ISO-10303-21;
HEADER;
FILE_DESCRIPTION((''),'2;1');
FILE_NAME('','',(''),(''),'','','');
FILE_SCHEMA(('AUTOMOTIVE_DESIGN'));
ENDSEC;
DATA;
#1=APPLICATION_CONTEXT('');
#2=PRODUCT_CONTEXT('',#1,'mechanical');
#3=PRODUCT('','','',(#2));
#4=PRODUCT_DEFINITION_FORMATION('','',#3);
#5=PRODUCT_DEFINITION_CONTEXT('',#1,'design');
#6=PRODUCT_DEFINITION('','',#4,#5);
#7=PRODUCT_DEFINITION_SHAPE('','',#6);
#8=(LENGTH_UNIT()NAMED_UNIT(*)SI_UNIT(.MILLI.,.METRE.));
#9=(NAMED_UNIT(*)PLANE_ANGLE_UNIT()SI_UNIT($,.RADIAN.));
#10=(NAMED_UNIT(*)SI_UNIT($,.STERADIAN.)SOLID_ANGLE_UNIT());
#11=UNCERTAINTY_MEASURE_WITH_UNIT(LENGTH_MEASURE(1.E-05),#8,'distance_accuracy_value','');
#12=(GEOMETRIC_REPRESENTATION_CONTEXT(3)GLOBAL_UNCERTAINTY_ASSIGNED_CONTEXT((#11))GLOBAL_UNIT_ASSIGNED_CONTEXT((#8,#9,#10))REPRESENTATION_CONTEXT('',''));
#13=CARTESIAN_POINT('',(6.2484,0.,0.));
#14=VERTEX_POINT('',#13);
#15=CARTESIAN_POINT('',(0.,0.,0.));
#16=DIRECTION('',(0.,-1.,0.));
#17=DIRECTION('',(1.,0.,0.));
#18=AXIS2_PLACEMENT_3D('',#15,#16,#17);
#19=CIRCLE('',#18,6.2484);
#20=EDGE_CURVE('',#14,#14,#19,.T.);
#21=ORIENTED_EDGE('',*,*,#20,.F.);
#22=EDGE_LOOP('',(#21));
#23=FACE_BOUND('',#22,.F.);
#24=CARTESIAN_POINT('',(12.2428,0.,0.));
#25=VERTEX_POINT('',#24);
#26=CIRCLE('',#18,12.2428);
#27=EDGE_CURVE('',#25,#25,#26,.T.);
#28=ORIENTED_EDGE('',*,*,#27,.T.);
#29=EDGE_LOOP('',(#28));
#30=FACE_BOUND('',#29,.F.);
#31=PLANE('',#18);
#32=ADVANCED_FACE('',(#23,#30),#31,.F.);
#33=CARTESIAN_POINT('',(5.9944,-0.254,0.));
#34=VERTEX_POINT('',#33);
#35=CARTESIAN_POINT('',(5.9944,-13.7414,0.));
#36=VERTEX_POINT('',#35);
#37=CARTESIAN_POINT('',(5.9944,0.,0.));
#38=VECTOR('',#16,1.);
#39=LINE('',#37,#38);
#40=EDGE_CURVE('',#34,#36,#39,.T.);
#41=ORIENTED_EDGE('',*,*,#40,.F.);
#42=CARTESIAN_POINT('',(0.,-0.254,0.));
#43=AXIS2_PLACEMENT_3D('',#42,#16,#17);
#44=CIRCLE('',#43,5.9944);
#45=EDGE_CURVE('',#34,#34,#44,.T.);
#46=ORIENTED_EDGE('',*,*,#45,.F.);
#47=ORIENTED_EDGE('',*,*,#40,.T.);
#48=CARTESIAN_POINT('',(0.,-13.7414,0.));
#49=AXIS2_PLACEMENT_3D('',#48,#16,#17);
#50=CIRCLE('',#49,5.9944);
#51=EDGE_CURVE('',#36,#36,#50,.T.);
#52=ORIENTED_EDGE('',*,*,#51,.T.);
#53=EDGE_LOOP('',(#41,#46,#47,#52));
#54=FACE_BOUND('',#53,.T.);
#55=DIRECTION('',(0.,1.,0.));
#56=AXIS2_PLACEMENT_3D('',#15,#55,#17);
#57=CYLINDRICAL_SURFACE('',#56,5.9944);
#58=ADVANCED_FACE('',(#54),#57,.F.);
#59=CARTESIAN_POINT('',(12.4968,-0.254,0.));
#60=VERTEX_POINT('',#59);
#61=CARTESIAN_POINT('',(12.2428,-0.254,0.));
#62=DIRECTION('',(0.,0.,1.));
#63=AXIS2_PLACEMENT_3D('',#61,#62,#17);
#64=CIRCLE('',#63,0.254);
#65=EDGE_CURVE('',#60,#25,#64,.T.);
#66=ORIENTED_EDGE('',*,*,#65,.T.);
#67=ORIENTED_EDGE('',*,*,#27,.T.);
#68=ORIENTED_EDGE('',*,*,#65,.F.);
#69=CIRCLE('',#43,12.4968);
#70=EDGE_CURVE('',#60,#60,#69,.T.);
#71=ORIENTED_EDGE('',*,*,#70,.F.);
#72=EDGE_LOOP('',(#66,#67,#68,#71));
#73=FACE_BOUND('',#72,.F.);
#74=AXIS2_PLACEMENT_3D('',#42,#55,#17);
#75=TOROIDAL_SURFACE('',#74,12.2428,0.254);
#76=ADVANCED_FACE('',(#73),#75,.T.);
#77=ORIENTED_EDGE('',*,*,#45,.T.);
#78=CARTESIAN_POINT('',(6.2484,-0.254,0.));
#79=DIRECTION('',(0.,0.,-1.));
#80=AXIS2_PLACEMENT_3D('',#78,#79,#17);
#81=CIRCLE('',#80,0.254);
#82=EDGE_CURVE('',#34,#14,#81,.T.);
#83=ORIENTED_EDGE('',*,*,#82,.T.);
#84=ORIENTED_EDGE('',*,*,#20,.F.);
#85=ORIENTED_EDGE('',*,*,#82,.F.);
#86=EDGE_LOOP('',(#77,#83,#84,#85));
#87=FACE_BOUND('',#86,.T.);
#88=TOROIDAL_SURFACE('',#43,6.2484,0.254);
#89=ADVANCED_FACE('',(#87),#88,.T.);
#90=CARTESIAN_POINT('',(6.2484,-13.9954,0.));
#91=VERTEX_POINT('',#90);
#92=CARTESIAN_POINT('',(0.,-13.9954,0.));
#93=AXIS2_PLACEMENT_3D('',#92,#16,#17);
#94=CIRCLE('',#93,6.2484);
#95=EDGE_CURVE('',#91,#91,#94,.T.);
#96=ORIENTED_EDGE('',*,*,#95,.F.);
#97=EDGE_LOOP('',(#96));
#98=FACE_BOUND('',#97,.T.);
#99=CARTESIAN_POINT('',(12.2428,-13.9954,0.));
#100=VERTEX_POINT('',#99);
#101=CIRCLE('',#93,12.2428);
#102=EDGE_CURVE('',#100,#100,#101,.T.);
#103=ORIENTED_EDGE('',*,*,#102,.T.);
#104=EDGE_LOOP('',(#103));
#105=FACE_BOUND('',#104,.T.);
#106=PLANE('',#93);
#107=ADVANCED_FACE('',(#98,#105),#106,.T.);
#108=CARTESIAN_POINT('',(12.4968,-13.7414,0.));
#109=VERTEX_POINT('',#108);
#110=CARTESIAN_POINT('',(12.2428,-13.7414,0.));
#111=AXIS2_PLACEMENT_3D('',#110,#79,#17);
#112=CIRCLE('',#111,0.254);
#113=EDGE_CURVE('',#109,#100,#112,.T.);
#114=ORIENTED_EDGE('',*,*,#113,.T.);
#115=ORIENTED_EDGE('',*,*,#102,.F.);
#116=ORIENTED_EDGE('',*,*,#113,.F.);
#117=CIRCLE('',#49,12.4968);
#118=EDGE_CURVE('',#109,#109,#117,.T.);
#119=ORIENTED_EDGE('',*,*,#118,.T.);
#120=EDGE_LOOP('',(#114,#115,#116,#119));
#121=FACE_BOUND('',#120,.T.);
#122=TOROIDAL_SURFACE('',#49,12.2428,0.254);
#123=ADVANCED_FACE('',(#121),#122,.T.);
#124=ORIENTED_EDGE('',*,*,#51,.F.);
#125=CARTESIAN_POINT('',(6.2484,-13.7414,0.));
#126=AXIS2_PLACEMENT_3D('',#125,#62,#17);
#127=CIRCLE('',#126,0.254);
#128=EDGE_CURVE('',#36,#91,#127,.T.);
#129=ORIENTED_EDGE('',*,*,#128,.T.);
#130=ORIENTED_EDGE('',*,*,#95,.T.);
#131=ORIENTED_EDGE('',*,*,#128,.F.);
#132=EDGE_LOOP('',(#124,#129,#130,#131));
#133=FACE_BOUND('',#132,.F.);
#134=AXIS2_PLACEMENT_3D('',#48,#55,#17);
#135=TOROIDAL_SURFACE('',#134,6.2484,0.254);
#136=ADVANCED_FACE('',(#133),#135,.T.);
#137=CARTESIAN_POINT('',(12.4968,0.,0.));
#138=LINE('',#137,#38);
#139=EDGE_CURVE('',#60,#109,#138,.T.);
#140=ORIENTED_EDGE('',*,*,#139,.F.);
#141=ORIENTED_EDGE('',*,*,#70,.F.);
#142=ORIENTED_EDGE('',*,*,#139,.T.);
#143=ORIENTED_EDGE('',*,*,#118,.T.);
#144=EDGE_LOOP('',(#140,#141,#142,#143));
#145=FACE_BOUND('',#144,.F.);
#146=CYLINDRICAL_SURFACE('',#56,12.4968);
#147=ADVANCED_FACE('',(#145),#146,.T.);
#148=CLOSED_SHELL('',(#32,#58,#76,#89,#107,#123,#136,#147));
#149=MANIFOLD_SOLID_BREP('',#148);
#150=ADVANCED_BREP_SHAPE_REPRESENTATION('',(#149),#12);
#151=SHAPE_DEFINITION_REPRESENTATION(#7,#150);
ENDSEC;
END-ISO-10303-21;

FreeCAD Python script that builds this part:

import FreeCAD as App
import Part
import Sketcher
from FreeCAD import Vector
Q = App.Units.Quantity

doc = App.newDocument("Part")
params = doc.addObject("Spreadsheet::Sheet", "Params")
for row, (alias, value) in enumerate([
    ("sketch1_diameter", "0.984 in"),
    ("sketch1_diameter2", "0.472 in"),
    ("pad1_length", "0.551 in"),
    ("fillet_radius", "0.01 in"),
], start=1):
    params.set(f"A{row}", alias)
    params.set(f"B{row}", "=" + value)
    params.setAlias(f"B{row}", alias)

body = doc.addObject("PartDesign::Body", "Body")

# Sketch on XZ plane
sketch1 = body.newObject("Sketcher::SketchObject", "Sketch")
sketch1.AttachmentSupport = (doc.getObject("XZ_Plane"), [""])
sketch1.MapMode = "FlatFace"
sketch1.addGeometry([
    Part.Circle(Vector(0, 0, 0), Vector(0, 0, 1), 12.4968),
    Part.Circle(Vector(0, 0, 0), Vector(0, 0, 1), 5.9944),
], False)
sketch1.addConstraint([
    Sketcher.Constraint("Coincident", 0, 3, -1, 1),
    Sketcher.Constraint("Coincident", 1, 3, -1, 1),
    Sketcher.Constraint("Diameter", 0, Q("0.984 in")),
    Sketcher.Constraint("Diameter", 1, Q("0.472 in")),
])
sketch1.setExpression("Constraints[2]", "Params.sketch1_diameter")
sketch1.setExpression("Constraints[3]", "Params.sketch1_diameter2")
pad1 = body.newObject("PartDesign::Pad", "Pad")
pad1.Profile = sketch1
pad1.setExpression("Length", "Params.pad1_length")
doc.recompute()

fillet = body.newObject("PartDesign::Fillet", "Fillet")
fillet.Base = (pad1, ["Edge1"])
fillet.UseAllEdges = True
fillet.setExpression("Radius", "Params.fillet_radius")

doc.recompute()
